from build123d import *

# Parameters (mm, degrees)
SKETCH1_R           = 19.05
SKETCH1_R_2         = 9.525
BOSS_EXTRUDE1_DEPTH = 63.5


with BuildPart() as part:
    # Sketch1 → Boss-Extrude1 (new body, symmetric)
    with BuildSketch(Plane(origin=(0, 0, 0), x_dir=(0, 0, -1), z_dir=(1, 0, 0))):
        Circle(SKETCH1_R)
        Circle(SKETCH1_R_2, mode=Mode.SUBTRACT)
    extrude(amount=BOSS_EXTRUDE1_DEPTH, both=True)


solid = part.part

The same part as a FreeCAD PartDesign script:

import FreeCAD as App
import Part
import Sketcher

V = App.Vector
Q = App.Units.Quantity

doc = App.newDocument("Part")
body = doc.addObject("PartDesign::Body", "Body")

sketch1 = body.newObject("Sketcher::SketchObject", "Sketch")
sketch1.AttachmentSupport = (doc.getObject("YZ_Plane"), [""])
sketch1.MapMode = "FlatFace"
sketch1.addGeometry([
    Part.Circle(V(0, 0, 0), V(0, 0, 1), 19.05),
    Part.Circle(V(0, 0, 0), V(0, 0, 1), 9.525),
], False)
sketch1.addConstraint([
    Sketcher.Constraint("Coincident", 0, 3, -1, 1),
    Sketcher.Constraint("Coincident", 1, 3, -1, 1),
    Sketcher.Constraint("Diameter", 0, Q("1.5 in")),
    Sketcher.Constraint("Diameter", 1, Q("0.75 in")),
])
pad1 = body.newObject("PartDesign::Pad", "Pad")
pad1.Profile = sketch1
pad1.Length = Q("5 in")
pad1.Midplane = True

doc.recompute()
